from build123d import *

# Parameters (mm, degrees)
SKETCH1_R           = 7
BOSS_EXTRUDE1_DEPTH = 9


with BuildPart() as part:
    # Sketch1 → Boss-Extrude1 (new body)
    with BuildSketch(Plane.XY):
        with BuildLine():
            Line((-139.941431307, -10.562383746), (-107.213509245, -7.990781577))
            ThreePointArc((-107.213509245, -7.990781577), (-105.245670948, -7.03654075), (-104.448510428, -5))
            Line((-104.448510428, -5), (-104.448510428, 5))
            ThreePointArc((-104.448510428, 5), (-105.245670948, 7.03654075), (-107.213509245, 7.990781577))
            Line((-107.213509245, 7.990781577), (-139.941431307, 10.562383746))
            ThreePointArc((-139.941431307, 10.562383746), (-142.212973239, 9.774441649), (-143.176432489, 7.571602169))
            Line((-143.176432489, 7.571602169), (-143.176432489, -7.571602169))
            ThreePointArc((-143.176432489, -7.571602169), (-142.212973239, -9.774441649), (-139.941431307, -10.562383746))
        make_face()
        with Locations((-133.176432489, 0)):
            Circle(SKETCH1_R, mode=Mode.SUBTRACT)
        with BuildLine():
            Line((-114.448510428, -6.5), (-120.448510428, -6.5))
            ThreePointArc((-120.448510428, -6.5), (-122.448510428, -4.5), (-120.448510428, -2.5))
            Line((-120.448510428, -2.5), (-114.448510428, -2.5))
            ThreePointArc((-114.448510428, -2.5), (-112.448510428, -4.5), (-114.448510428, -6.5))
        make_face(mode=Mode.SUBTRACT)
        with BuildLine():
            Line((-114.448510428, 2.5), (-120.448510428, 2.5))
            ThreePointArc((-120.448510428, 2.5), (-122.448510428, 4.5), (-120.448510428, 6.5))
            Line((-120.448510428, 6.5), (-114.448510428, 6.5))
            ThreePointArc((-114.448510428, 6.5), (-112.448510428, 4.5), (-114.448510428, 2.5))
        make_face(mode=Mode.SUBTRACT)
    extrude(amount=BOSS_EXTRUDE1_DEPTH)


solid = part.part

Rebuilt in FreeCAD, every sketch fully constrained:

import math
import FreeCAD as App
import Part
import Sketcher
from FreeCAD import Vector
Q = App.Units.Quantity

doc = App.newDocument("Part")
body = doc.addObject("PartDesign::Body", "Body")

# Sketch on XY plane
sketch1 = body.newObject("Sketcher::SketchObject", "Sketch")
sketch1.AttachmentSupport = (doc.getObject("XY_Plane"), [""])
sketch1.MapMode = "FlatFace"
sketch1.addGeometry([
    Part.LineSegment(Vector(-139.941431, -10.562384, 0), Vector(-107.213509, -7.990782, 0)),  # 0
    Part.ArcOfCircle(Part.Circle(Vector(-107.44851, -5, 0), Vector(0, 0, 1), 3), math.radians(-85.507205), math.radians(0)),  # 1
    Part.LineSegment(Vector(-104.44851, -5, 0), Vector(-104.44851, 5, 0)),  # 2
    Part.ArcOfCircle(Part.Circle(Vector(-107.44851, 5, 0), Vector(0, 0, 1), 3), math.radians(0), math.radians(85.507205)),  # 3
    Part.LineSegment(Vector(-107.213509, 7.990782, 0), Vector(-139.941431, 10.562384, 0)),  # 4
    Part.ArcOfCircle(Part.Circle(Vector(-140.176432, 7.571602, 0), Vector(0, 0, 1), 3), math.radians(85.507205), math.radians(180)),  # 5
    Part.LineSegment(Vector(-143.176432, 7.571602, 0), Vector(-143.176432, -7.571602, 0)),  # 6
    Part.ArcOfCircle(Part.Circle(Vector(-140.176432, -7.571602, 0), Vector(0, 0, 1), 3), math.radians(180), math.radians(274.492795)),  # 7
    Part.ArcOfCircle(Part.Circle(Vector(-114.44851, -4.5, 0), Vector(0, 0, 1), 2), math.radians(-90), math.radians(90)),  # 8
    Part.LineSegment(Vector(-114.44851, -6.5, 0), Vector(-120.44851, -6.5, 0)),  # 9
    Part.ArcOfCircle(Part.Circle(Vector(-120.44851, -4.5, 0), Vector(0, 0, 1), 2), math.radians(90), math.radians(270)),  # 10
    Part.LineSegment(Vector(-120.44851, -2.5, 0), Vector(-114.44851, -2.5, 0)),  # 11
    Part.Circle(Vector(-133.176432, 0, 0), Vector(0, 0, 1), 7),  # 12
    Part.ArcOfCircle(Part.Circle(Vector(-114.44851, 4.5, 0), Vector(0, 0, 1), 2), math.radians(-90), math.radians(90)),  # 13
    Part.LineSegment(Vector(-114.44851, 2.5, 0), Vector(-120.44851, 2.5, 0)),  # 14
    Part.ArcOfCircle(Part.Circle(Vector(-120.44851, 4.5, 0), Vector(0, 0, 1), 2), math.radians(90), math.radians(270)),  # 15
    Part.LineSegment(Vector(-120.44851, 6.5, 0), Vector(-114.44851, 6.5, 0)),  # 16
], False)
sketch1.addConstraint([
    Sketcher.Constraint("Tangent", 0, 2, 1, 1),
    Sketcher.Constraint("Tangent", 1, 2, 2, 1),
    Sketcher.Constraint("Tangent", 2, 2, 3, 1),
    Sketcher.Constraint("Tangent", 3, 2, 4, 1),
    Sketcher.Constraint("Tangent", 4, 2, 5, 1),
    Sketcher.Constraint("Tangent", 5, 2, 6, 1),
    Sketcher.Constraint("Tangent", 6, 2, 7, 1),
    Sketcher.Constraint("Tangent", 7, 2, 0, 1),
    Sketcher.Constraint("Tangent", 8, 1, 9, 1),
    Sketcher.Constraint("Tangent", 9, 2, 10, 2),
    Sketcher.Constraint("Tangent", 10, 1, 11, 1),
    Sketcher.Constraint("Tangent", 11, 2, 8, 2),
    Sketcher.Constraint("Tangent", 13, 1, 14, 1),
    Sketcher.Constraint("Tangent", 14, 2, 15, 2),
    Sketcher.Constraint("Tangent", 15, 1, 16, 1),
    Sketcher.Constraint("Tangent", 16, 2, 13, 2),
    Sketcher.Constraint("Vertical", 2),
    Sketcher.Constraint("Vertical", 6),
    Sketcher.Constraint("Horizontal", 9),
    Sketcher.Constraint("Horizontal", 11),
    Sketcher.Constraint("Horizontal", 14),
    Sketcher.Constraint("Horizontal", 16),
    Sketcher.Constraint("Equal", 1, 3),
    Sketcher.Constraint("Equal", 3, 5),
    Sketcher.Constraint("Equal", 5, 7),
    Sketcher.Constraint("Equal", 10, 13),
    Sketcher.Constraint("Symmetric", 8, 3, 13, 3, -1),
    Sketcher.Constraint("Symmetric", 0, 2, 3, 2, -1),
    Sketcher.Constraint("PointOnObject", 12, 3, -1),
    Sketcher.Constraint("Vertical", 10, 3, 15, 3),
    Sketcher.Constraint("Diameter", 12, Q("14 mm")),
    Sketcher.Constraint("Radius", 1, Q("3 mm")),
    Sketcher.Constraint("Radius", 8, Q("2 mm")),
    Sketcher.Constraint("DistanceX", 9, 2, 9, 1, Q("6 mm")),
    Sketcher.Constraint("DistanceY", 2, 1, 2, 2, Q("10 mm")),
    Sketcher.Constraint("DistanceX", 8, 3, 1, 3, Q("7 mm")),
    Sketcher.Constraint("DistanceX", 5, 3, 12, 3, Q("7 mm")),
    Sketcher.Constraint("DistanceY", 8, 3, 13, 3, Q("9 mm")),
    Sketcher.Constraint("DistanceX", 1, 3, 0, 2, Q("0.235001 mm")),
    Sketcher.Constraint("Distance", 0, Q("32.828799 mm")),
    Sketcher.Constraint("DistanceX", 1, 3, -1, 1, Q("107.44851 mm")),
])
pad1 = body.newObject("PartDesign::Pad", "Pad")
pad1.Profile = sketch1
pad1.Length = 9

doc.recompute()
